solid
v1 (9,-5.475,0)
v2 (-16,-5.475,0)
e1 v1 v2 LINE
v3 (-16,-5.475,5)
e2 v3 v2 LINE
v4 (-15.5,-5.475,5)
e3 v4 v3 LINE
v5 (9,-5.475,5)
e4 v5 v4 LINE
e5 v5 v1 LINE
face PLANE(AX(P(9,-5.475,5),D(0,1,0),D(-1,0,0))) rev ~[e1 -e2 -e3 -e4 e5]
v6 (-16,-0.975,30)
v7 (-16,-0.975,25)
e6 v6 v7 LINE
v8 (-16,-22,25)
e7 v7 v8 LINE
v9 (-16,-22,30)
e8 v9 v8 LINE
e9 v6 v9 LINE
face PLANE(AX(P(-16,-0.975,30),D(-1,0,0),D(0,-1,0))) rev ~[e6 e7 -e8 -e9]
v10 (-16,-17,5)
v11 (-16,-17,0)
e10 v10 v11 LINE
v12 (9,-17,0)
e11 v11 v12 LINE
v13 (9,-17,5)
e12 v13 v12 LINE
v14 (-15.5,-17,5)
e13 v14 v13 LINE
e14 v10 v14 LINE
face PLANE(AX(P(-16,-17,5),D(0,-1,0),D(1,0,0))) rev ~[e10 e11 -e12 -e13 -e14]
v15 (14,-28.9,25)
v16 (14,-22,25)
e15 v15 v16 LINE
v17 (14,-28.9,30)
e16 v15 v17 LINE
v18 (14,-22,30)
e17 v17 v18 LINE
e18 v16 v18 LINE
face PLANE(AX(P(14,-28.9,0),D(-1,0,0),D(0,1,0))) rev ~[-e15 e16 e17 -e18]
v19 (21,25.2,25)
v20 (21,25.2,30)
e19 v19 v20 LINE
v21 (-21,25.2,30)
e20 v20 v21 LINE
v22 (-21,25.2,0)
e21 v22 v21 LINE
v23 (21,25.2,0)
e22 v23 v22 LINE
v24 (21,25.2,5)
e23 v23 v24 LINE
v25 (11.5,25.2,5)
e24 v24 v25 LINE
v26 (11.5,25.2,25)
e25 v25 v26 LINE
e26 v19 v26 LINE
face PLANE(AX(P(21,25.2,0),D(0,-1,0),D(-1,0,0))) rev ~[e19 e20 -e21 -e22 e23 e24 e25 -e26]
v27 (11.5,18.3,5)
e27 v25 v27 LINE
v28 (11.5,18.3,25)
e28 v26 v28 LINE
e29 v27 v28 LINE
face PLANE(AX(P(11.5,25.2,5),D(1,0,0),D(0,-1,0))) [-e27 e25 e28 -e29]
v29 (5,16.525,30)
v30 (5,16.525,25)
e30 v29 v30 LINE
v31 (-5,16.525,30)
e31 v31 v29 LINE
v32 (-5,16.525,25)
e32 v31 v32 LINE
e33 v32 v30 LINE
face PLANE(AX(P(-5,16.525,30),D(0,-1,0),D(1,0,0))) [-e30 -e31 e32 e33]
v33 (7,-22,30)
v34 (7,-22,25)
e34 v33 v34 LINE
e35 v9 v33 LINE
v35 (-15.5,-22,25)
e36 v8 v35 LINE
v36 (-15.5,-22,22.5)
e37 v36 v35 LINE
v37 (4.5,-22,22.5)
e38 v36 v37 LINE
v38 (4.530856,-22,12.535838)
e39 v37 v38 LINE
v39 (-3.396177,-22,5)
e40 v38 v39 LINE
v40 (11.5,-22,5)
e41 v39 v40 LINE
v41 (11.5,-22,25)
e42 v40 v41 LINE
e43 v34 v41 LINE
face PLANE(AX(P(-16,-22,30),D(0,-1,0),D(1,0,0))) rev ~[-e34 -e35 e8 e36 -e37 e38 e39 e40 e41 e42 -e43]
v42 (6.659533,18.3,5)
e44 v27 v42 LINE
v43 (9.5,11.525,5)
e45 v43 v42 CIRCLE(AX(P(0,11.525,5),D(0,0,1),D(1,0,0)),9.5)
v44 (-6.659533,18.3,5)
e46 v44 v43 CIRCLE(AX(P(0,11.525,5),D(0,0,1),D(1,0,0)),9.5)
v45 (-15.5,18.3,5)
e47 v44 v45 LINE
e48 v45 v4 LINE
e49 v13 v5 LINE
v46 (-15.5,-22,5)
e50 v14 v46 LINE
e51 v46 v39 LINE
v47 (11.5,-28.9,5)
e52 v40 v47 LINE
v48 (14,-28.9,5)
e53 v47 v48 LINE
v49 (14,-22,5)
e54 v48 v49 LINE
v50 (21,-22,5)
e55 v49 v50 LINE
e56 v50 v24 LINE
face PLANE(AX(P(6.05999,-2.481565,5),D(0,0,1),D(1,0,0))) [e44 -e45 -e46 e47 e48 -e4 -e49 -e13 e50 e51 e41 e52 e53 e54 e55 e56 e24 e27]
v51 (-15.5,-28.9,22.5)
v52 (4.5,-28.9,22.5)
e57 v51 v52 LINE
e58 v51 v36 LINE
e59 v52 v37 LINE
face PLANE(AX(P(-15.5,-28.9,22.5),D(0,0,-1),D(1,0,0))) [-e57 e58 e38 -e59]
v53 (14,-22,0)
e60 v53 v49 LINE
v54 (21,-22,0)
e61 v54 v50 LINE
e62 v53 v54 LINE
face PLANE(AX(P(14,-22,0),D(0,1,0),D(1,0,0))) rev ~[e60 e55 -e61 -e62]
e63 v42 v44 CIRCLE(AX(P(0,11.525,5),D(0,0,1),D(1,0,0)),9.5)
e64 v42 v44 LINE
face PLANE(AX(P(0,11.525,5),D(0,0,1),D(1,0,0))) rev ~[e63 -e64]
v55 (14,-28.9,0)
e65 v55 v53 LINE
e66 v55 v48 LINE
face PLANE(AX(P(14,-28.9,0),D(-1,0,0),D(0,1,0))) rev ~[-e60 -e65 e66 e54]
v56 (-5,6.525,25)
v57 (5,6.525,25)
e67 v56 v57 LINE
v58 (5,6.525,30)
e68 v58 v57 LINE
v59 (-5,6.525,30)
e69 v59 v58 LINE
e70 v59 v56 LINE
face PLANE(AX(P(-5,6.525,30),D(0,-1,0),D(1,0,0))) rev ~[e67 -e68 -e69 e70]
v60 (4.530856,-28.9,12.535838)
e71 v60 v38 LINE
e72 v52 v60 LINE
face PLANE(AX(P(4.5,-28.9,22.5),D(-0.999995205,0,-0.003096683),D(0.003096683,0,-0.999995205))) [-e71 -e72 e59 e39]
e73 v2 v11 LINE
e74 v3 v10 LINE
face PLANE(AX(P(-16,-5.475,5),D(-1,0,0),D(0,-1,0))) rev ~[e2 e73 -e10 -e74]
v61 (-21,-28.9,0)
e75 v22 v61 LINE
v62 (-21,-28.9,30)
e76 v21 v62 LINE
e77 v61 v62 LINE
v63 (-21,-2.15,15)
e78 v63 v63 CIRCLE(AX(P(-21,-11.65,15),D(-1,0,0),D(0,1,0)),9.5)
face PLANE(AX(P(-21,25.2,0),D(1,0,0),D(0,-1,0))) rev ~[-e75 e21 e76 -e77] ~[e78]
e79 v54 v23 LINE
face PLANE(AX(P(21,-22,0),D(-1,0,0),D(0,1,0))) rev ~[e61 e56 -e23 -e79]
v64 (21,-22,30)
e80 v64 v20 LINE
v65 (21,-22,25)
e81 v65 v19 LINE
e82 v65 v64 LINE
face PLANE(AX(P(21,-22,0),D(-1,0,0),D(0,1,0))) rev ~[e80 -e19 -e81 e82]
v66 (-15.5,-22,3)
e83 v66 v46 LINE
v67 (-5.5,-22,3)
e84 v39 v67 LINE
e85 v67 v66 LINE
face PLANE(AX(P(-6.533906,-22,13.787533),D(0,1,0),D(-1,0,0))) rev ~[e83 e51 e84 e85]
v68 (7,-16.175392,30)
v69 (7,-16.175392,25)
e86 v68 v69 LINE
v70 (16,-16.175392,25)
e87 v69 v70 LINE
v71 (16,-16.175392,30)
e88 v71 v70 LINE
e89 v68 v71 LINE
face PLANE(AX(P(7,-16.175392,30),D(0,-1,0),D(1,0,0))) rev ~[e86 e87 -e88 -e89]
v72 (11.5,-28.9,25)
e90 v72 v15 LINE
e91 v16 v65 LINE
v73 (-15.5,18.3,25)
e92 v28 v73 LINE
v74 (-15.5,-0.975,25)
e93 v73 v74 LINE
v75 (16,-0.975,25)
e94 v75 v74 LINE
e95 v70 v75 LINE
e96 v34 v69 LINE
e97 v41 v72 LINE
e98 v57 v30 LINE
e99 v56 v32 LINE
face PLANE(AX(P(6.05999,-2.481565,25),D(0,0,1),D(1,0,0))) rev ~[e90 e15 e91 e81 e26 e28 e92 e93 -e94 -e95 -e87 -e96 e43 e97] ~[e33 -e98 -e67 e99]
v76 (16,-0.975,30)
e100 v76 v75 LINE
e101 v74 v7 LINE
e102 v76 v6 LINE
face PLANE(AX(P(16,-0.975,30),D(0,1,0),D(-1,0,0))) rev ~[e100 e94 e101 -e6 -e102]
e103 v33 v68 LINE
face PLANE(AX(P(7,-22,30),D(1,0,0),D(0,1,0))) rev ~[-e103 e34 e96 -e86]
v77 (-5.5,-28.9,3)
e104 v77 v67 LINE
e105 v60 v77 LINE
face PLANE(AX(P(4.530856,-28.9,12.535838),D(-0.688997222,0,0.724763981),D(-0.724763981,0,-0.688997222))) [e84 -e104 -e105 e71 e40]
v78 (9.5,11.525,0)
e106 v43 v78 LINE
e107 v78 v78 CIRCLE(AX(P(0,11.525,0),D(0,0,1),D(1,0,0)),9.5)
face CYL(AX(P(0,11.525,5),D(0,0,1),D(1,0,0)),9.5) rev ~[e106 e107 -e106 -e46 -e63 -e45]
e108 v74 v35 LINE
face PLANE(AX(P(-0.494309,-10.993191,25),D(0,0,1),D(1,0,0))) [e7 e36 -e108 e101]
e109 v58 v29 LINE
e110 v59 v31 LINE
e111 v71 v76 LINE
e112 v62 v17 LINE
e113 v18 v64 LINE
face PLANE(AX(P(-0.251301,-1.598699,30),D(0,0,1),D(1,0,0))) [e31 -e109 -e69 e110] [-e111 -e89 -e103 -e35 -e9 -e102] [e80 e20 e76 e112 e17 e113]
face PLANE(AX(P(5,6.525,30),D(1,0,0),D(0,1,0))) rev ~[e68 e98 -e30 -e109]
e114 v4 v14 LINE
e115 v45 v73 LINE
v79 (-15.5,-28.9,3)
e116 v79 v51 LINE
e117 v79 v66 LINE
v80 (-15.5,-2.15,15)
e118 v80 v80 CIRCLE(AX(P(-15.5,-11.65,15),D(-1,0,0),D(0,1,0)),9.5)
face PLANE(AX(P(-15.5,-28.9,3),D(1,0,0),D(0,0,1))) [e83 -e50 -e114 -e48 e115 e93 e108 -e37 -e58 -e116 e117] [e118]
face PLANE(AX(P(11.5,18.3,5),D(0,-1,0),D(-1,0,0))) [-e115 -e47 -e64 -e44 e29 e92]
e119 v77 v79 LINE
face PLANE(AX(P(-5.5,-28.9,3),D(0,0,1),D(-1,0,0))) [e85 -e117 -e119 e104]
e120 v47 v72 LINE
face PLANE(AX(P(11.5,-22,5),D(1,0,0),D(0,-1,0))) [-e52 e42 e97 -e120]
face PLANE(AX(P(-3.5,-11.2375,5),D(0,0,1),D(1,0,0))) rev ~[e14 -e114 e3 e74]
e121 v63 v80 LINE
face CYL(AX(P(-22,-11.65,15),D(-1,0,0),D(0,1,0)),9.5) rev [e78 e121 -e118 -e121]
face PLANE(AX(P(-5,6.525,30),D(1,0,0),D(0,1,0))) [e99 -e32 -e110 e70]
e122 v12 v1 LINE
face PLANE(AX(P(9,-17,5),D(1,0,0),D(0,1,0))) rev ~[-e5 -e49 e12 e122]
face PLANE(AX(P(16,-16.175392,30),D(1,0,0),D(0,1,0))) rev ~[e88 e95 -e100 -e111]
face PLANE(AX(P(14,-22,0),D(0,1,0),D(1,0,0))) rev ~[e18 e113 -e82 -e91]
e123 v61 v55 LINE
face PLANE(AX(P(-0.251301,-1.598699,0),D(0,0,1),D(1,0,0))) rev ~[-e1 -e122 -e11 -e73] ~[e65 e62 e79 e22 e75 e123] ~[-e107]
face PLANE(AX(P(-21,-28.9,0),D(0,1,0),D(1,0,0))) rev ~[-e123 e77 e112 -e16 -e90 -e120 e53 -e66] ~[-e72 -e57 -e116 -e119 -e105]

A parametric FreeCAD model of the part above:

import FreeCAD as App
import Part
import Sketcher
from FreeCAD import Vector


def add_polygon(sketch, points):
    """Adds a closed chain of lines whose ends are joined by coincident constraints."""
    first, n = sketch.GeometryCount, len(points)
    for a, b in zip(points, points[1:] + points[:1]):
        sketch.addGeometry(Part.LineSegment(App.Vector(*a, 0), App.Vector(*b, 0)), False)
    for i in range(n):
        sketch.addConstraint(Sketcher.Constraint("Coincident", first + i, 2, first + (i + 1) % n, 1))

doc = App.newDocument("Part")
body = doc.addObject("PartDesign::Body", "Body")

sketch1 = body.newObject("Sketcher::SketchObject", "Sketch")
sketch1.AttachmentSupport = (doc.getObject("XY_Plane"), [""])
sketch1.MapMode = "FlatFace"
add_polygon(sketch1, [(-21, 25), (-21, -29), (14, -29), (14, -22), (21, -22), (21, 25)])
sketch1.addConstraint([
    Sketcher.Constraint("Vertical", 0),
    Sketcher.Constraint("Horizontal", 1),
    Sketcher.Constraint("Vertical", 2),
    Sketcher.Constraint("Horizontal", 3),
    Sketcher.Constraint("Vertical", 4),
    Sketcher.Constraint("Horizontal", 5),
    Sketcher.Constraint("DistanceX", 1, 1, 1, 2, 35.0),
    Sketcher.Constraint("DistanceX", 3, 1, 3, 2, 7.0),
    Sketcher.Constraint("DistanceY", 0, 2, 0, 1, 54.1),
    Sketcher.Constraint("DistanceY", 2, 1, 2, 2, 6.9),
    Sketcher.Constraint("DistanceX", 0, 2, -1, 1, 21.0),
    Sketcher.Constraint("DistanceY", 2, 2, -1, 1, 22.0),
])
pad1 = body.newObject("PartDesign::Pad", "Pad")
pad1.Profile = sketch1
pad1.Length = 30

sketch2 = body.newObject("Sketcher::SketchObject", "Sketch001")
sketch2.AttachmentSupport = (doc.getObject("XY_Plane"), [""])
sketch2.MapMode = "FlatFace"
sketch2.AttachmentOffset = App.Placement(Vector(0, 0, 5), App.Rotation())
add_polygon(sketch2, [(-15.5, 18.3), (-15.5, -22), (11.5, -22), (11.5, -28.9), (14, -28.9), (14, -22), (21, -22), (21, -18), (27.5, -18), (27.5, -12), (21, -12), (21, 25.2), (11.5, 25.2), (11.5, 18.3)])
sketch2.addConstraint([
    Sketcher.Constraint("Vertical", 0),
    Sketcher.Constraint("Horizontal", 1),
    Sketcher.Constraint("Vertical", 2),
    Sketcher.Constraint("Horizontal", 3),
    Sketcher.Constraint("Vertical", 4),
    Sketcher.Constraint("Horizontal", 5),
    Sketcher.Constraint("Vertical", 6),
    Sketcher.Constraint("Horizontal", 7),
    Sketcher.Constraint("Vertical", 8),
    Sketcher.Constraint("Horizontal", 9),
    Sketcher.Constraint("Vertical", 10),
    Sketcher.Constraint("Horizontal", 11),
    Sketcher.Constraint("Vertical", 12),
    Sketcher.Constraint("Horizontal", 13),
    Sketcher.Constraint("Horizontal", 1, 2, 4, 2),
    Sketcher.Constraint("Vertical", 6, 2, 9, 2),
    Sketcher.Constraint("Vertical", 2, 2, 11, 2),
    Sketcher.Constraint("Equal", 4, 12),
    Sketcher.Constraint("DistanceX", 1, 1, 1, 2, 27.0),
    Sketcher.Constraint("DistanceX", 5, 1, 5, 2, 7.0),
    Sketcher.Constraint("DistanceY", 6, 1, 6, 2, 4.0),
    Sketcher.Constraint("DistanceY", 8, 1, 8, 2, 6.0),
    Sketcher.Constraint("DistanceX", 3, 1, 3, 2, 2.5),
    Sketcher.Constraint("DistanceX", 7, 1, 7, 2, 6.5),
    Sketcher.Constraint("DistanceY", 0, 2, 0, 1, 40.3),
    Sketcher.Constraint("DistanceY", 2, 2, 2, 1, 6.9),
    Sketcher.Constraint("DistanceY", 0, 2, -1, 1, 22.0),
    Sketcher.Constraint("DistanceX", -1, 1, 3, 2, 14.0),
])
pocket1 = body.newObject("PartDesign::Pocket", "Pocket")
pocket1.Profile = sketch2
pocket1.Length = 20
pocket1.Reversed = True

sketch3 = body.newObject("Sketcher::SketchObject", "Sketch002")
sketch3.AttachmentSupport = (doc.getObject("XZ_Plane"), [""])
sketch3.MapMode = "FlatFace"
sketch3.AttachmentOffset = App.Placement(Vector(0, 0, 28.9), App.Rotation())
add_polygon(sketch3, [(-6, 3), (5, 13), (4, 22), (-16, 22), (-16, 3)])
sketch3.addConstraint([
    Sketcher.Constraint("Horizontal", 2),
    Sketcher.Constraint("Vertical", 3),
    Sketcher.Constraint("Horizontal", 4),
    Sketcher.Constraint("DistanceX", 2, 2, 2, 1, 20.0),
    Sketcher.Constraint("DistanceX", 4, 1, 4, 2, 10.0),
    Sketcher.Constraint("DistanceY", 3, 2, 3, 1, 19.5),
    Sketcher.Constraint("DistanceY", -1, 1, 3, 2, 3.0),
    Sketcher.Constraint("DistanceX", -1, 1, 1, 2, 4.5),
    Sketcher.Constraint("Distance", 0, 13.840169),
    Sketcher.Constraint("Distance", 1, 9.96421),
])
pocket2 = body.newObject("PartDesign::Pocket", "Pocket001")
pocket2.Profile = sketch3
pocket2.Length = 6.9

sketch4 = body.newObject("Sketcher::SketchObject", "Sketch003")
sketch4.AttachmentSupport = (doc.getObject("XY_Plane"), [""])
sketch4.MapMode = "FlatFace"
sketch4.AttachmentOffset = App.Placement(Vector(0, 0, 5), App.Rotation())
sketch4.addGeometry(Part.Circle(Vector(0, 12, 0), Vector(0, 0, 1), 10), False)
add_polygon(sketch4, [(-16, -5), (-16, -17), (9, -17), (9, -5)])
sketch4.addConstraint([
    Sketcher.Constraint("Vertical", 1),
    Sketcher.Constraint("Horizontal", 2),
    Sketcher.Constraint("Vertical", 3),
    Sketcher.Constraint("Horizontal", 4),
    Sketcher.Constraint("PointOnObject", 0, 3, -2),
    Sketcher.Constraint("Diameter", 0, 19.0),
    Sketcher.Constraint("DistanceX", 2, 1, 2, 2, 25.0),
    Sketcher.Constraint("DistanceX", 1, 2, -1, 1, 16.0),
    Sketcher.Constraint("DistanceY", 1, 2, -1, 1, 17.0),
    Sketcher.Constraint("DistanceY", 3, 2, 0, 3, 17.0),
    Sketcher.Constraint("DistanceY", 1, 2, 1, 1, 11.525),
])
pocket3 = body.newObject("PartDesign::Pocket", "Pocket002")
pocket3.Profile = sketch4
pocket3.Length = 5

sketch5 = body.newObject("Sketcher::SketchObject", "Sketch004")
sketch5.AttachmentSupport = (doc.getObject("XY_Plane"), [""])
sketch5.MapMode = "FlatFace"
sketch5.AttachmentOffset = App.Placement(Vector(0, 0, 30), App.Rotation())
add_polygon(sketch5, [(-16, -1), (-16, -22), (7, -22), (7, -16), (16, -16), (16, -1)])
add_polygon(sketch5, [(-5, 17), (-5, 7), (5, 7), (5, 17)])
sketch5.addConstraint([
    Sketcher.Constraint("Vertical", 0),
    Sketcher.Constraint("Horizontal", 1),
    Sketcher.Constraint("Vertical", 2),
    Sketcher.Constraint("Horizontal", 3),
    Sketcher.Constraint("Vertical", 4),
    Sketcher.Constraint("Horizontal", 5),
    Sketcher.Constraint("Vertical", 6),
    Sketcher.Constraint("Horizontal", 7),
    Sketcher.Constraint("Vertical", 8),
    Sketcher.Constraint("Horizontal", 9),
    Sketcher.Constraint("Equal", 9, 6),
    Sketcher.Constraint("DistanceX", 1, 1, 1, 2, 23.0),
    Sketcher.Constraint("DistanceX", 3, 1, 3, 2, 9.0),
    Sketcher.Constraint("DistanceX", 7, 1, 7, 2, 10.0),
    Sketcher.Constraint("DistanceX", 0, 2, -1, 1, 16.0),
    Sketcher.Constraint("DistanceY", 0, 2, -1, 1, 22.0),
    Sketcher.Constraint("DistanceX", 6, 2, -1, 1, 5.0),
    Sketcher.Constraint("DistanceY", 5, 2, 6, 2, 7.5),
    Sketcher.Constraint("DistanceY", 0, 2, 0, 1, 21.025),
    Sketcher.Constraint("DistanceY", 2, 1, 2, 2, 5.824608),
])
pocket4 = body.newObject("PartDesign::Pocket", "Pocket003")
pocket4.Profile = sketch5
pocket4.Length = 5

sketch6 = body.newObject("Sketcher::SketchObject", "Sketch005")
sketch6.AttachmentSupport = (doc.getObject("YZ_Plane"), [""])
sketch6.MapMode = "FlatFace"
sketch6.AttachmentOffset = App.Placement(Vector(0, 0, -22), App.Rotation())
sketch6.addGeometry(Part.Circle(Vector(-12, 15, 0), Vector(0, 0, 1), 10), False)
sketch6.addConstraint([
    Sketcher.Constraint("Diameter", 0, 19.0),
    Sketcher.Constraint("DistanceY", -1, 1, 0, 3, 15.0),
    Sketcher.Constraint("DistanceX", 0, 3, -1, 1, 11.65),
])
pocket5 = body.newObject("PartDesign::Pocket", "Pocket004")
pocket5.Profile = sketch6
pocket5.Length = 56
pocket5.Reversed = True

doc.recompute()
